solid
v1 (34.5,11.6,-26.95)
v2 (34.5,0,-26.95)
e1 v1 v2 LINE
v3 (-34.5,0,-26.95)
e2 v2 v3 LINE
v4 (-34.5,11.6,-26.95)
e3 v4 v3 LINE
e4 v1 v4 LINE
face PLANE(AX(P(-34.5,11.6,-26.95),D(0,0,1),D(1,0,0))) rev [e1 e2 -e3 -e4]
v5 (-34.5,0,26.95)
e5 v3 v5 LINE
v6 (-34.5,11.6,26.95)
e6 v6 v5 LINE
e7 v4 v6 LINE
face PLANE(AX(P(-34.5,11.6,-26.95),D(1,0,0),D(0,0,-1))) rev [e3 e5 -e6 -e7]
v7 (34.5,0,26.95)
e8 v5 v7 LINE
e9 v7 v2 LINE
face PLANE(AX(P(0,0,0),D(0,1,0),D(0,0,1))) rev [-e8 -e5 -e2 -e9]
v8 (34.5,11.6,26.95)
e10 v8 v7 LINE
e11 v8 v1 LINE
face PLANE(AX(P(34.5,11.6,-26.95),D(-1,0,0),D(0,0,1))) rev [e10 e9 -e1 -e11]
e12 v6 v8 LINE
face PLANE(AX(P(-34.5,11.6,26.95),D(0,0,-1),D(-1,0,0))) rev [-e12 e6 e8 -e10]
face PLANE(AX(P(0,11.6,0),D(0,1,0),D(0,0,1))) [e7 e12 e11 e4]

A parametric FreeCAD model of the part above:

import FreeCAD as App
import Part
import Sketcher

doc = App.newDocument("Part")
params = doc.addObject("Spreadsheet::Sheet", "Params")
for row, (alias, value) in enumerate([
    ("sketch1_width", "69 mm"),
    ("sketch1_height", "53.9 mm"),
    ("pad1_length", "11.6 mm"),
], start=1):
    params.set(f"A{row}", alias)
    params.set(f"B{row}", "=" + value)
    params.setAlias(f"B{row}", alias)

body = doc.addObject("PartDesign::Body", "Body")

sketch1 = body.newObject("Sketcher::SketchObject", "Sketch")
sketch1.AttachmentSupport = (doc.getObject("XZ_Plane"), [""])
sketch1.MapMode = "FlatFace"
sketch1.addGeometry(Part.LineSegment(App.Vector(-34, -27, 0), App.Vector(-34, 27, 0)), False)
sketch1.addGeometry(Part.LineSegment(App.Vector(-34, 27, 0), App.Vector(34, 27, 0)), False)
sketch1.addGeometry(Part.LineSegment(App.Vector(34, 27, 0), App.Vector(34, -27, 0)), False)
sketch1.addGeometry(Part.LineSegment(App.Vector(34, -27, 0), App.Vector(-34, -27, 0)), False)
sketch1.addConstraint(Sketcher.Constraint("Coincident", 0, 2, 1, 1))
sketch1.addConstraint(Sketcher.Constraint("Coincident", 1, 2, 2, 1))
sketch1.addConstraint(Sketcher.Constraint("Coincident", 2, 2, 3, 1))
sketch1.addConstraint(Sketcher.Constraint("Coincident", 3, 2, 0, 1))
sketch1.addConstraint(Sketcher.Constraint("Vertical", 0))
sketch1.addConstraint(Sketcher.Constraint("Horizontal", 1))
sketch1.addConstraint(Sketcher.Constraint("Vertical", 2))
sketch1.addConstraint(Sketcher.Constraint("Horizontal", 3))
sketch1.addConstraint(Sketcher.Constraint("Symmetric", 0, 2, 2, 2, -1, 1))
sketch1.addConstraint(Sketcher.Constraint("DistanceX", 1, 1, 1, 2, 69.0))
sketch1.addConstraint(Sketcher.Constraint("DistanceY", 0, 1, 0, 2, 53.9))
sketch1.setExpression("Constraints[9]", "Params.sketch1_width")
sketch1.setExpression("Constraints[10]", "Params.sketch1_height")
pad1 = body.newObject("PartDesign::Pad", "Pad")
pad1.Profile = sketch1
pad1.setExpression("Length", "Params.pad1_length")
pad1.Reversed = True

doc.recompute()
